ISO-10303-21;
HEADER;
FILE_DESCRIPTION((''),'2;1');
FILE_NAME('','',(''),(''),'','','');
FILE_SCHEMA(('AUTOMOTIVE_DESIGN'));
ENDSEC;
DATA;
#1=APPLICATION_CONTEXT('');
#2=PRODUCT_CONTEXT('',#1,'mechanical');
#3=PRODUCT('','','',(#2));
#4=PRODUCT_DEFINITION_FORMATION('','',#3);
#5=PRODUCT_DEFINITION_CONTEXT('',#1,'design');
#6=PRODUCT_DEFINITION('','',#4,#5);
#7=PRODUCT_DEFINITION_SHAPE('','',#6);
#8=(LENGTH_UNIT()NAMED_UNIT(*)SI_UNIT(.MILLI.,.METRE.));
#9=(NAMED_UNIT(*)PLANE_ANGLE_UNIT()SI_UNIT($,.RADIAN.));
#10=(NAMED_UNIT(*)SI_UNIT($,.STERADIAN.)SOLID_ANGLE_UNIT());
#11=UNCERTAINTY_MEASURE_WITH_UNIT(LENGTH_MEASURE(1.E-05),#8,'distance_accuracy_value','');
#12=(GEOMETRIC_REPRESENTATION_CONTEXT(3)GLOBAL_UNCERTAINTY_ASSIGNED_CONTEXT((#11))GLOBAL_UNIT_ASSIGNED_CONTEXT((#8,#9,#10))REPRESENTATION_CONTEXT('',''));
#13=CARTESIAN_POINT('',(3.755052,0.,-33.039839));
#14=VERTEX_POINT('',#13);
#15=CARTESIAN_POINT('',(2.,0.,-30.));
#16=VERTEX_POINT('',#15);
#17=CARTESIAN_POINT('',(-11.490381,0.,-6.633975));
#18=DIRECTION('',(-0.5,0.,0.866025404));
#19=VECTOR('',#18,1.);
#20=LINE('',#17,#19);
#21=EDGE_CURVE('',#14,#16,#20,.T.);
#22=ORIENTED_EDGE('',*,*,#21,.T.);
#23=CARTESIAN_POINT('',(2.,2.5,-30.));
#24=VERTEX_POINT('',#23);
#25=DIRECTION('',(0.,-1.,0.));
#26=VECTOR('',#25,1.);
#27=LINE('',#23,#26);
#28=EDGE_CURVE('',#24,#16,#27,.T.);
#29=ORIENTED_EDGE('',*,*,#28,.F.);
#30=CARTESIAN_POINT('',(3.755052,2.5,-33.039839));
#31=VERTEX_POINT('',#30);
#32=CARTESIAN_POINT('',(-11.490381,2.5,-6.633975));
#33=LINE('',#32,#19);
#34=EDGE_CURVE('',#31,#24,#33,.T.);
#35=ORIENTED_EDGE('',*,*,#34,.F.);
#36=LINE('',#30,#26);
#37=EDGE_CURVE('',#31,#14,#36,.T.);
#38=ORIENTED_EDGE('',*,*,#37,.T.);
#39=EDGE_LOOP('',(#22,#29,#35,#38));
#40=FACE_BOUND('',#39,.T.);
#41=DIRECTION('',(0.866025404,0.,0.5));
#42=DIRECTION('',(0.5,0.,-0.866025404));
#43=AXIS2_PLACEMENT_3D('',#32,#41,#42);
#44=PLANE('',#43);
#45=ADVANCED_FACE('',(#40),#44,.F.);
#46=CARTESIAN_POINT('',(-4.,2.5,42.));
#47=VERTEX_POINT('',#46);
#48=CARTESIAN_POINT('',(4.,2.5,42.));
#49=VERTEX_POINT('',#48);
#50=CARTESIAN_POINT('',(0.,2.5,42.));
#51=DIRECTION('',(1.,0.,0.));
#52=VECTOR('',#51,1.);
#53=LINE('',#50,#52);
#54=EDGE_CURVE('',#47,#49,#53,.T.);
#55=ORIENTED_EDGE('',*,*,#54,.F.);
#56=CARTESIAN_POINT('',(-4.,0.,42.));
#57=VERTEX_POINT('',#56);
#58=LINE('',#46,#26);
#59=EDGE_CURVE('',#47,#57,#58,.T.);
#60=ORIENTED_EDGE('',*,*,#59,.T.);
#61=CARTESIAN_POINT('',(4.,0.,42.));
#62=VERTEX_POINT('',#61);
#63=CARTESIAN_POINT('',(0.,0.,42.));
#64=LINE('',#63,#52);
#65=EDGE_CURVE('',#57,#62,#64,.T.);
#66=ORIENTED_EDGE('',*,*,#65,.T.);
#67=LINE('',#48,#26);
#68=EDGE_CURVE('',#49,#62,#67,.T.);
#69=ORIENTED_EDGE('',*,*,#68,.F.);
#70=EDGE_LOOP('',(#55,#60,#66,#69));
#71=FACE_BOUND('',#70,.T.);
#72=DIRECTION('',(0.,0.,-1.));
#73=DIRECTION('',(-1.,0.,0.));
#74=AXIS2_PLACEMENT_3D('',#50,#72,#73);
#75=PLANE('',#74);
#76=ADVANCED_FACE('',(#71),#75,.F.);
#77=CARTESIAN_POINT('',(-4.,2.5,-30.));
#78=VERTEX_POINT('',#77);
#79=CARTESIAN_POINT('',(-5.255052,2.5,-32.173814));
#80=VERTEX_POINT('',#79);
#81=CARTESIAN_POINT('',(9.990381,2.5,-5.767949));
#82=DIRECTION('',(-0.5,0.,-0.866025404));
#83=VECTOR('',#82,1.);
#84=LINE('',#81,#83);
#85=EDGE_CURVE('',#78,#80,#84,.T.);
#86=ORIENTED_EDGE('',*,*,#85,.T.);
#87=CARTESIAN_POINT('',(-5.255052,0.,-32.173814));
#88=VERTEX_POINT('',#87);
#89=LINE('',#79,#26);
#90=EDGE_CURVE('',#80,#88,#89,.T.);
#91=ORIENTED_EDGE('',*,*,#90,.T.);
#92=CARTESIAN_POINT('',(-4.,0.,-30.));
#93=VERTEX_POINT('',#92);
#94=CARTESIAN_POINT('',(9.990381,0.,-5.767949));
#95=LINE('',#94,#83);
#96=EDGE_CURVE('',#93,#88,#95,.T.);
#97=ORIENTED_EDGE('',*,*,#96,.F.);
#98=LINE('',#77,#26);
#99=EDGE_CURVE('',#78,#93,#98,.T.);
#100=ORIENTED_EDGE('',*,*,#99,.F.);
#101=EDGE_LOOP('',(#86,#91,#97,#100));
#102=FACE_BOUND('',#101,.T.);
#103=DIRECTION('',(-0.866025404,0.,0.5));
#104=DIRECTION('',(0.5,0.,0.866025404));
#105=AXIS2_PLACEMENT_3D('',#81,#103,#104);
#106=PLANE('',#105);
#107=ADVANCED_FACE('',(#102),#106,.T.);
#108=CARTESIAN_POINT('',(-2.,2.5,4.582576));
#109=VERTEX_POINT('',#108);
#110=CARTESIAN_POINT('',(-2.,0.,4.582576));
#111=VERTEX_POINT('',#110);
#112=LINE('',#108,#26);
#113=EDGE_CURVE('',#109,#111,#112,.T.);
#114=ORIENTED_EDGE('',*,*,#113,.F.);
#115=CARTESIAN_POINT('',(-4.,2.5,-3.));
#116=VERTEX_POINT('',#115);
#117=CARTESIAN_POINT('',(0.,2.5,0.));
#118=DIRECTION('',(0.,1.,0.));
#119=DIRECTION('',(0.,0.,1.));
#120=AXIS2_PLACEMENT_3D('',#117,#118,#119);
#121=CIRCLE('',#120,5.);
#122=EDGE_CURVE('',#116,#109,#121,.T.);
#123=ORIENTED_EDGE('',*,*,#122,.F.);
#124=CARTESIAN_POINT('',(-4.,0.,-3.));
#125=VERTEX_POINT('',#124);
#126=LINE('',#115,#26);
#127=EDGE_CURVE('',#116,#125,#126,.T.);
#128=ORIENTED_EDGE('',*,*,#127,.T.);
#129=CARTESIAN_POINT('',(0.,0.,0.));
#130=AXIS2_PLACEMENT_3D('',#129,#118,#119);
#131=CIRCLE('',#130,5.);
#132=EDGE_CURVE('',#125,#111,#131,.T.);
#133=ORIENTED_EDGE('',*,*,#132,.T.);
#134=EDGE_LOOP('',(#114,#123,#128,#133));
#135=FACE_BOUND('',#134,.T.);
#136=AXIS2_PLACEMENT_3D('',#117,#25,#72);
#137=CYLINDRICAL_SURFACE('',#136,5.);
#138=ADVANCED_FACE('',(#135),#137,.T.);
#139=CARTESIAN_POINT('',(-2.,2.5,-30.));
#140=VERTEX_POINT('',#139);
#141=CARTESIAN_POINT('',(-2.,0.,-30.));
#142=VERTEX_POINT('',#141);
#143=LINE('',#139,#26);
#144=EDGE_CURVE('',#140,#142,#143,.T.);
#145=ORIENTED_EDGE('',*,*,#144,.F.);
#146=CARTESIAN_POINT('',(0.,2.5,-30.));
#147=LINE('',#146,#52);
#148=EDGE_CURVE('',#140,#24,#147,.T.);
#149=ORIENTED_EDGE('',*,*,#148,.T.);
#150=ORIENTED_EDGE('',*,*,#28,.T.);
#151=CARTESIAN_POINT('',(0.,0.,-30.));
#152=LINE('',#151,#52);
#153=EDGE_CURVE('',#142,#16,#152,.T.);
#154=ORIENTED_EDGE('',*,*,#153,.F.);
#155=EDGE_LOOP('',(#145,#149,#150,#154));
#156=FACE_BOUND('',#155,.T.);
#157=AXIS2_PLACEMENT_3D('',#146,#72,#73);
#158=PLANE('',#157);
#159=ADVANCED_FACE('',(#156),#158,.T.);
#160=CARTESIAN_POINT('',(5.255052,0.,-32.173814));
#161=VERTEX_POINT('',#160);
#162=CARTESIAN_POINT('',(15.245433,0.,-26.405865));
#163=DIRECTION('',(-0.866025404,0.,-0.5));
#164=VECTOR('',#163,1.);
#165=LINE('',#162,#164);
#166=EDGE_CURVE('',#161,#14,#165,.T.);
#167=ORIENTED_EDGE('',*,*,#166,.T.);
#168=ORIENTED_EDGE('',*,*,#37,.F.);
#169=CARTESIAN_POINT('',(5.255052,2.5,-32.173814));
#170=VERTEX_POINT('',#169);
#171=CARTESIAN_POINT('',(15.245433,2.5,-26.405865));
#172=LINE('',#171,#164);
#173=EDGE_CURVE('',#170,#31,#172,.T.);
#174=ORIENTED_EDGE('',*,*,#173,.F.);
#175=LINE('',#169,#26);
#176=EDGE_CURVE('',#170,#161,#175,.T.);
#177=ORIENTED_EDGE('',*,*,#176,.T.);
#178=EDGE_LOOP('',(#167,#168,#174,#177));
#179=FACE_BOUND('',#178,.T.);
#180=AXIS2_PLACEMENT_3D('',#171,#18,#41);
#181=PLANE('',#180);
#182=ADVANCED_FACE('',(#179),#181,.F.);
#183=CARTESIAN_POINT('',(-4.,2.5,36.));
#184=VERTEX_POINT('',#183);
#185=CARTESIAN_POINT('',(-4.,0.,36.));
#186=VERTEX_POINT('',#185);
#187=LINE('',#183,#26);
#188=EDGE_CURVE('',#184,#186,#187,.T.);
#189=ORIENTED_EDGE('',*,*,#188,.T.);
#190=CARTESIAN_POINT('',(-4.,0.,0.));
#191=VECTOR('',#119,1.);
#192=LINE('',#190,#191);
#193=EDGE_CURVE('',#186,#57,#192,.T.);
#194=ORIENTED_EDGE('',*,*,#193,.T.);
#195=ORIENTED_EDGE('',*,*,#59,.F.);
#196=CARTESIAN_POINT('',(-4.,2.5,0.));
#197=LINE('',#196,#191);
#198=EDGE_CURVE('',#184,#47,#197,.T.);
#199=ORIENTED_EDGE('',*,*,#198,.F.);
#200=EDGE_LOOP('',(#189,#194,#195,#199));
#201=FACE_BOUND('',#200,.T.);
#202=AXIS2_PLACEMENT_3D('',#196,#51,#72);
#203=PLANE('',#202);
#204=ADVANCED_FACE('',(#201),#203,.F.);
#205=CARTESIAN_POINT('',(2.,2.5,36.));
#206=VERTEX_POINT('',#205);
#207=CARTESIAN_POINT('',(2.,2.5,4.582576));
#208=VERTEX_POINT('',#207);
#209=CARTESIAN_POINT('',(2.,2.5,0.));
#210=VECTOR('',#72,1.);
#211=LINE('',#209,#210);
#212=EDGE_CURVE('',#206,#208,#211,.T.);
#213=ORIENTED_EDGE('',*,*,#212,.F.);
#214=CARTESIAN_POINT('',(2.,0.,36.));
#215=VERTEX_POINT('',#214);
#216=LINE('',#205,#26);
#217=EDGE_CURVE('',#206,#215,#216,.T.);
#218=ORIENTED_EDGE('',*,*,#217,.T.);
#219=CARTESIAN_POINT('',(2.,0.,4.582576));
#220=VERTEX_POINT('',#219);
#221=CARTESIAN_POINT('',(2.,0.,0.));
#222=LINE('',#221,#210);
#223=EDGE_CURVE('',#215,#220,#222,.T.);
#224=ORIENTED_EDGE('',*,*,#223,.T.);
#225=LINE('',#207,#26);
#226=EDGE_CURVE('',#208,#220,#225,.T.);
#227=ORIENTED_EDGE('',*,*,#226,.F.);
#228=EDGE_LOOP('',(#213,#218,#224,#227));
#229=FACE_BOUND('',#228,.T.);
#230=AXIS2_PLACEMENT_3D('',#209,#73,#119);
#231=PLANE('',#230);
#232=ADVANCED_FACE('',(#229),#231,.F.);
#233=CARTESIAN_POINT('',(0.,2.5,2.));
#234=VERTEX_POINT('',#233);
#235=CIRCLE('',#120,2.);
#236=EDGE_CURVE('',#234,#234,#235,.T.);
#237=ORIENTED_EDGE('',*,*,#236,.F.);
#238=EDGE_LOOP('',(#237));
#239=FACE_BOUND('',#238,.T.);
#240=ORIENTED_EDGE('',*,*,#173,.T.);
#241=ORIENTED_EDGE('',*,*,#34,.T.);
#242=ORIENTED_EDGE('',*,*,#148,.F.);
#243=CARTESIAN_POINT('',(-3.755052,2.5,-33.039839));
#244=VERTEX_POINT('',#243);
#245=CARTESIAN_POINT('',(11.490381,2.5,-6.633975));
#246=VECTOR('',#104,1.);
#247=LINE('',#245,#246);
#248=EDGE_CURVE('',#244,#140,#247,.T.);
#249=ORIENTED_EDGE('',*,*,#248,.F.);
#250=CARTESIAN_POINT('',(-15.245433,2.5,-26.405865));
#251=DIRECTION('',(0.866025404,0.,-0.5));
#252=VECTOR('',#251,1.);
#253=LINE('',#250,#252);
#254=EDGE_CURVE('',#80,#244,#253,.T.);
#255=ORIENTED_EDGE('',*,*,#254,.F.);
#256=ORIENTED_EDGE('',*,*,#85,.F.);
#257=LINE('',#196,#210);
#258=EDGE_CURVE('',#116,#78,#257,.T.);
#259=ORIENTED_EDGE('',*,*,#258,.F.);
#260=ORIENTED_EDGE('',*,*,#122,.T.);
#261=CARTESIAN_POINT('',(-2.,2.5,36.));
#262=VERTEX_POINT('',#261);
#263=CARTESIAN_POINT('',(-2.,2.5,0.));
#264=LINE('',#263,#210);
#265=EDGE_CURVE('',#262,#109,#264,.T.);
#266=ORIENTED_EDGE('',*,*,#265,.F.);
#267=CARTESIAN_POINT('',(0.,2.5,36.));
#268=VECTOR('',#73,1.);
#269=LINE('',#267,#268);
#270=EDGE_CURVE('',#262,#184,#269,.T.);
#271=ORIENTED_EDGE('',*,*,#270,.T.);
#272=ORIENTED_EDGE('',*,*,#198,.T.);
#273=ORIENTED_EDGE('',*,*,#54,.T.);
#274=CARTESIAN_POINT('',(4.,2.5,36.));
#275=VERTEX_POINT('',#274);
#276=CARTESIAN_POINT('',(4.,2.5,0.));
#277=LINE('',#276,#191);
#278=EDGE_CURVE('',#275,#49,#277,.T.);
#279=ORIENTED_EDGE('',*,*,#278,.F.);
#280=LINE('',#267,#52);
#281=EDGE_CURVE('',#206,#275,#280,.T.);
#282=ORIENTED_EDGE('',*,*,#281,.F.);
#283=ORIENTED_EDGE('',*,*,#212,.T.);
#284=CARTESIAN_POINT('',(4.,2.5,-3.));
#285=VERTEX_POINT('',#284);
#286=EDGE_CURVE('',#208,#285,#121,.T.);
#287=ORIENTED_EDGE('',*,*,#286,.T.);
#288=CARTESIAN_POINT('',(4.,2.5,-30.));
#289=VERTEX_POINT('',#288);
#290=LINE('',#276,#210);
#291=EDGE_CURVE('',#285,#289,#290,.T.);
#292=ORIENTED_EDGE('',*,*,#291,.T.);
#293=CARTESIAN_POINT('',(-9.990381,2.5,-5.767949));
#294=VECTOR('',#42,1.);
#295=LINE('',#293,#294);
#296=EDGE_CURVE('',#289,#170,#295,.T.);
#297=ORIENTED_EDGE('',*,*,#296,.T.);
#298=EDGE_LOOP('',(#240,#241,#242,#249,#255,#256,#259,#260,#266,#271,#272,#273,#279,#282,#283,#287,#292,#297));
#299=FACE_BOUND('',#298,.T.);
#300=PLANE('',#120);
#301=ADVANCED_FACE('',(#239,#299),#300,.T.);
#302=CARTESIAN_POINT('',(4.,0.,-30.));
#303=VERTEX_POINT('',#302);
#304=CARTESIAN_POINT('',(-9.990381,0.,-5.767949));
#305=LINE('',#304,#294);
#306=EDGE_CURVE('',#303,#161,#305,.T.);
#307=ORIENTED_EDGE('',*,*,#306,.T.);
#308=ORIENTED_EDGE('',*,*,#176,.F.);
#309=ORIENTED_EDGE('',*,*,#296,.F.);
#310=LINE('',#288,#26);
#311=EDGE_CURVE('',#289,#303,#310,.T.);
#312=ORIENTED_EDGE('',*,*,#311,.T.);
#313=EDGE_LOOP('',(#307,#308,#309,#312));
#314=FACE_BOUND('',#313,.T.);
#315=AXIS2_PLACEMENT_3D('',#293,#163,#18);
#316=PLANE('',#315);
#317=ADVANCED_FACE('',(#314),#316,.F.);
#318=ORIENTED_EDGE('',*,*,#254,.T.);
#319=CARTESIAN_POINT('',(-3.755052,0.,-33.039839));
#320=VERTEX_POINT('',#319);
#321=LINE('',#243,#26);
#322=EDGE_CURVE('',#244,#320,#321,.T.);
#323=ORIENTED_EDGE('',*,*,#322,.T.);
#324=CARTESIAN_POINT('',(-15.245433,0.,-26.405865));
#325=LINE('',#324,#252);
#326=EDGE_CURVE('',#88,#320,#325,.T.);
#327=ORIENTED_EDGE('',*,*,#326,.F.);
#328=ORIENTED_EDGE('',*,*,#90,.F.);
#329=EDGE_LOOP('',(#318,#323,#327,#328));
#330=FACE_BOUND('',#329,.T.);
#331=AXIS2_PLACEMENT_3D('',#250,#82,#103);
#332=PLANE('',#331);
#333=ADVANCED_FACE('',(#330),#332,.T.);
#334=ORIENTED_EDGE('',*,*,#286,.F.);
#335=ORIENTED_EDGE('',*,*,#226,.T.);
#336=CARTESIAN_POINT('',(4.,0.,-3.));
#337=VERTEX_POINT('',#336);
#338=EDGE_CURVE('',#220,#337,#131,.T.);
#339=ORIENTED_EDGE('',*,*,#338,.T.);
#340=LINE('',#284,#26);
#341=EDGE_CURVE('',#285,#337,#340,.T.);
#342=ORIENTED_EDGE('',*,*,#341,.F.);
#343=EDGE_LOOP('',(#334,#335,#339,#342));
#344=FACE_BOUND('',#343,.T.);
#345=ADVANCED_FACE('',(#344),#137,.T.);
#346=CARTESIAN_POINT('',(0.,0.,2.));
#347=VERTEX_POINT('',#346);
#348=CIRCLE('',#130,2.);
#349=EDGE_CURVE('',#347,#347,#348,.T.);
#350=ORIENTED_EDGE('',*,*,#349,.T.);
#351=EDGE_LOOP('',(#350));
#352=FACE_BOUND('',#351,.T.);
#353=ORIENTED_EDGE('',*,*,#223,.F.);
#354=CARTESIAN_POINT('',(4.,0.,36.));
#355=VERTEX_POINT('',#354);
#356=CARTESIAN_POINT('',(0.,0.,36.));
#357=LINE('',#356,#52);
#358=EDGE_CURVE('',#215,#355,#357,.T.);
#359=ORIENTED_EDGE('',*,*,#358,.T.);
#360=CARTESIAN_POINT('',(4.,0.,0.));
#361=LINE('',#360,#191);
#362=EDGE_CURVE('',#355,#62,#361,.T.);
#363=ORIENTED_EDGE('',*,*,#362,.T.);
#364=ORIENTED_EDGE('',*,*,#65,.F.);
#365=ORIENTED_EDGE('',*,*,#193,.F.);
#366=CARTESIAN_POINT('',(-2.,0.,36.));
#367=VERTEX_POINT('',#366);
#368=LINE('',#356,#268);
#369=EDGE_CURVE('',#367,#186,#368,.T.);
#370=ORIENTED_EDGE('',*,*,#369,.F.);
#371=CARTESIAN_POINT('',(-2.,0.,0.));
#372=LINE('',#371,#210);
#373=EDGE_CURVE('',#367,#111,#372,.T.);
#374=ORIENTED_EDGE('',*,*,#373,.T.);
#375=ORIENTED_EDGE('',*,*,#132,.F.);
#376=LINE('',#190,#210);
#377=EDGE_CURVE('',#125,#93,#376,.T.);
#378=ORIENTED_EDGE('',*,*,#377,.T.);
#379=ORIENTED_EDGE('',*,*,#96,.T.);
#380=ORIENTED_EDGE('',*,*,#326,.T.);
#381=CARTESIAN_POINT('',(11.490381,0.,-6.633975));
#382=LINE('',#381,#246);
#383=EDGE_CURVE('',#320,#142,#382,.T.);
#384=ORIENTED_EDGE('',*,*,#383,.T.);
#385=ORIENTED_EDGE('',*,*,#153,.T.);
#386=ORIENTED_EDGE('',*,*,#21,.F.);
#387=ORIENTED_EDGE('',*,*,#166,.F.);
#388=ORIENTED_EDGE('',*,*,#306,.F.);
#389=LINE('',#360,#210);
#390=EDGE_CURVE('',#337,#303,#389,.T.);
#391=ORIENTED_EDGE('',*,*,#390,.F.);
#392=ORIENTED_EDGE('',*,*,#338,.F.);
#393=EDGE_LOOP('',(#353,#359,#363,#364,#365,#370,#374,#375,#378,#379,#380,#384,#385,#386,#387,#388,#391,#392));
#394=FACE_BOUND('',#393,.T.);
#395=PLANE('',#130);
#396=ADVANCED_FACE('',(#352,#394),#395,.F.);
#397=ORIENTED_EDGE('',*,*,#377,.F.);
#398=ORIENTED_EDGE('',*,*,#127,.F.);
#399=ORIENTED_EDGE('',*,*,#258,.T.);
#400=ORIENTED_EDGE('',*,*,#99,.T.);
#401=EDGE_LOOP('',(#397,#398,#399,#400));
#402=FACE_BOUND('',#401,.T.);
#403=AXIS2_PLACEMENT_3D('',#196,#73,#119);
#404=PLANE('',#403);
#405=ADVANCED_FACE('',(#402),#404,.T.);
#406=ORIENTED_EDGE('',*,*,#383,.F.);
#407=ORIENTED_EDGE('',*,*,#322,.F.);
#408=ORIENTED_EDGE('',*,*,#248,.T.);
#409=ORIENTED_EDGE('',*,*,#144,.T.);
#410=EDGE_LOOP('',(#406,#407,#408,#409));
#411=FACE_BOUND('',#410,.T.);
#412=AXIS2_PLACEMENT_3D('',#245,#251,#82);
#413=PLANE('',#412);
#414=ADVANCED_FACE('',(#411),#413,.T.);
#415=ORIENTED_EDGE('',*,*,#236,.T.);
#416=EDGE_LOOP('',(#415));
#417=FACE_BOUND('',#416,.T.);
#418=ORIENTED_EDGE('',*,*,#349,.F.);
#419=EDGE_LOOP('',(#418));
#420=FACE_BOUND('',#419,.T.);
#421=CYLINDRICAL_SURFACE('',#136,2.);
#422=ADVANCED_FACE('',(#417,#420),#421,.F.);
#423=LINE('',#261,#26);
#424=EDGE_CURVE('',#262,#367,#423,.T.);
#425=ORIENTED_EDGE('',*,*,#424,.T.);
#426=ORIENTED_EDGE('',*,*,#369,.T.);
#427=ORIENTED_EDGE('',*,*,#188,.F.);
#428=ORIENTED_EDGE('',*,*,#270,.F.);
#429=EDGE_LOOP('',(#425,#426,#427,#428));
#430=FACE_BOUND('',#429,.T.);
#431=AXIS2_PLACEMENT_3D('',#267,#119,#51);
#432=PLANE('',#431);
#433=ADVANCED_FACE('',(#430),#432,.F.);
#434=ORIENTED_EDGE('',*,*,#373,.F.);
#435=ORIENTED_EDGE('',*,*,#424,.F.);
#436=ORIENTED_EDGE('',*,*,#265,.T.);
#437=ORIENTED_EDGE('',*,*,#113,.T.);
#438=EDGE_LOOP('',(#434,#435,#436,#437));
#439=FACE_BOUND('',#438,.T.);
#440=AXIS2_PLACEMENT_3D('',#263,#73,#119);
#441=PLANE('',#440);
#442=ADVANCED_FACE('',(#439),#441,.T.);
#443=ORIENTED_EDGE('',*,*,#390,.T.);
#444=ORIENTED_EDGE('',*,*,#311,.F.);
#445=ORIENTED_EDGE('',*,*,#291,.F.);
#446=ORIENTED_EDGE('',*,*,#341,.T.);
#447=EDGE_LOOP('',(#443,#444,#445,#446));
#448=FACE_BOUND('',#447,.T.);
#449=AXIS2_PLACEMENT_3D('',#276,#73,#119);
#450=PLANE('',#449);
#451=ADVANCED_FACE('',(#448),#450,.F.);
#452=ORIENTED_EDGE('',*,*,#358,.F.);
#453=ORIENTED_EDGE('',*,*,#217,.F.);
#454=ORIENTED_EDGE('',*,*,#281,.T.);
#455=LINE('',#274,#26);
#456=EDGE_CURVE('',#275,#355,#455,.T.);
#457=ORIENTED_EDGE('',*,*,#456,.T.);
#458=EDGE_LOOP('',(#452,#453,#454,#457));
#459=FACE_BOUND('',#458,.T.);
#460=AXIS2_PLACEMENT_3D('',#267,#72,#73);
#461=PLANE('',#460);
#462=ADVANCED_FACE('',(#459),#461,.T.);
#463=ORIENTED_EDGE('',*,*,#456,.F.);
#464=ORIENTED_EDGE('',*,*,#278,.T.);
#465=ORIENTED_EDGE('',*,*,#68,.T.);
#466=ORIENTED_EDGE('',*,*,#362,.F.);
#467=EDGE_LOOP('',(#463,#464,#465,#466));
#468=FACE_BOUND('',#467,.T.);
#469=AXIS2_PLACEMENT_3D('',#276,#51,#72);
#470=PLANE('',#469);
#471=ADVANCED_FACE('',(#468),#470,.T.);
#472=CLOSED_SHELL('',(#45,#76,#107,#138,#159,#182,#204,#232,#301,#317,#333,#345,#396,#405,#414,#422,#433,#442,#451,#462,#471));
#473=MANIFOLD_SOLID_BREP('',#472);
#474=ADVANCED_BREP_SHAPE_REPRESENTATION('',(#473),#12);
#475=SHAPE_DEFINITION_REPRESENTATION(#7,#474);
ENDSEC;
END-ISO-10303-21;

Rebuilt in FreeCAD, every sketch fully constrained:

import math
import FreeCAD as App
import Part
import Sketcher

V = App.Vector
Q = App.Units.Quantity

doc = App.newDocument("Part")
body = doc.addObject("PartDesign::Body", "Body")

# Sketch on XZ plane
sketch1 = body.newObject("Sketcher::SketchObject", "Sketch")
sketch1.AttachmentSupport = (doc.getObject("XZ_Plane"), [""])
sketch1.MapMode = "FlatFace"
sketch1.addGeometry([
    Part.LineSegment(V(-2, 4.6, 0), V(-2, 36, 0)),  # 0
    Part.LineSegment(V(-2, 36, 0), V(-4, 36, 0)),  # 1
    Part.LineSegment(V(-4, 36, 0), V(-4, 42, 0)),  # 2
    Part.LineSegment(V(-4, 42, 0), V(4, 42, 0)),  # 3
    Part.LineSegment(V(4, 42, 0), V(4, 36, 0)),  # 4
    Part.LineSegment(V(4, 36, 0), V(2, 36, 0)),  # 5
    Part.LineSegment(V(2, 36, 0), V(2, 4.6, 0)),  # 6
    Part.ArcOfCircle(Part.Circle(V(0, 0, 0), V(0, 0, 1), 5), math.radians(-37), math.radians(66)),  # 7
    Part.LineSegment(V(4, -3, 0), V(4, -30, 0)),  # 8
    Part.LineSegment(V(4, -30, 0), V(5.3, -32.2, 0)),  # 9
    Part.LineSegment(V(5.3, -32.2, 0), V(3.8, -33, 0)),  # 10
    Part.LineSegment(V(3.8, -33, 0), V(2, -30, 0)),  # 11
    Part.LineSegment(V(2, -30, 0), V(-2, -30, 0)),  # 12
    Part.LineSegment(V(-2, -30, 0), V(-3.8, -33, 0)),  # 13
    Part.LineSegment(V(-3.8, -33, 0), V(-5.3, -32.2, 0)),  # 14
    Part.LineSegment(V(-5.3, -32.2, 0), V(-4, -30, 0)),  # 15
    Part.LineSegment(V(-4, -30, 0), V(-4, -3, 0)),  # 16
    Part.ArcOfCircle(Part.Circle(V(0, 0, 0), V(0, 0, 1), 5), math.radians(114), math.radians(217)),  # 17
    Part.Circle(V(0, 0, 0), V(0, 0, 1), 2),  # 18
], False)
sketch1.addConstraint([
    Sketcher.Constraint("Coincident", 0, 2, 1, 1),
    Sketcher.Constraint("Coincident", 1, 2, 2, 1),
    Sketcher.Constraint("Coincident", 2, 2, 3, 1),
    Sketcher.Constraint("Coincident", 3, 2, 4, 1),
    Sketcher.Constraint("Coincident", 4, 2, 5, 1),
    Sketcher.Constraint("Coincident", 5, 2, 6, 1),
    Sketcher.Constraint("Coincident", 6, 2, 7, 2),
    Sketcher.Constraint("Coincident", 7, 1, 8, 1),
    Sketcher.Constraint("Coincident", 8, 2, 9, 1),
    Sketcher.Constraint("Coincident", 9, 2, 10, 1),
    Sketcher.Constraint("Coincident", 10, 2, 11, 1),
    Sketcher.Constraint("Coincident", 11, 2, 12, 1),
    Sketcher.Constraint("Coincident", 12, 2, 13, 1),
    Sketcher.Constraint("Coincident", 13, 2, 14, 1),
    Sketcher.Constraint("Coincident", 14, 2, 15, 1),
    Sketcher.Constraint("Coincident", 15, 2, 16, 1),
    Sketcher.Constraint("Coincident", 16, 2, 17, 2),
    Sketcher.Constraint("Coincident", 17, 1, 0, 1),
    Sketcher.Constraint("Vertical", 0),
    Sketcher.Constraint("Horizontal", 1),
    Sketcher.Constraint("Vertical", 2),
    Sketcher.Constraint("Horizontal", 3),
    Sketcher.Constraint("Vertical", 4),
    Sketcher.Constraint("Horizontal", 5),
    Sketcher.Constraint("Vertical", 6),
    Sketcher.Constraint("Vertical", 8),
    Sketcher.Constraint("Horizontal", 12),
    Sketcher.Constraint("Vertical", 16),
    Sketcher.Constraint("Coincident", 7, 3, -1, 1),
    Sketcher.Constraint("Coincident", 17, 3, -1, 1),
    Sketcher.Constraint("Coincident", 18, 3, -1, 1),
    Sketcher.Constraint("Equal", 7, 17),
    Sketcher.Constraint("Symmetric", 1, 2, 4, 2, -2),
    Sketcher.Constraint("Symmetric", 10, 2, 13, 2, -2),
    Sketcher.Constraint("Symmetric", 9, 2, 14, 2, -2),
    Sketcher.Constraint("Symmetric", 8, 2, 15, 2, -2),
    Sketcher.Constraint("Perpendicular", 9, 10),
    Sketcher.Constraint("Perpendicular", 10, 11),
    Sketcher.Constraint("Perpendicular", 13, 14),
    Sketcher.Constraint("Horizontal", 8, 2, 11, 2),
    Sketcher.Constraint("Horizontal", 6, 2, 17, 1),
    Sketcher.Constraint("Vertical", 4, 2, 7, 1),
    Sketcher.Constraint("Vertical", 6, 2, 11, 2),
    Sketcher.Constraint("Diameter", 18, Q("4 mm")),
    Sketcher.Constraint("Radius", 7, Q("5 mm")),
    Sketcher.Constraint("DistanceX", 1, 2, 1, 1, Q("2 mm")),
    Sketcher.Constraint("DistanceX", 3, 1, 3, 2, Q("8 mm")),
    Sketcher.Constraint("DistanceY", 2, 1, 2, 2, Q("6 mm")),
    Sketcher.Constraint("DistanceY", 8, 2, 8, 1, Q("27 mm")),
    Sketcher.Constraint("Angle", 9, Q("-60 deg")),
    Sketcher.Constraint("DistanceY", -1, 1, 0, 2, Q("36 mm")),
    Sketcher.Constraint("DistanceX", -1, 1, 9, 2, Q("5.255052 mm")),
])
pad1 = body.newObject("PartDesign::Pad", "Pad")
pad1.Profile = sketch1
pad1.Length = 2.5
pad1.Reversed = True

doc.recompute()
